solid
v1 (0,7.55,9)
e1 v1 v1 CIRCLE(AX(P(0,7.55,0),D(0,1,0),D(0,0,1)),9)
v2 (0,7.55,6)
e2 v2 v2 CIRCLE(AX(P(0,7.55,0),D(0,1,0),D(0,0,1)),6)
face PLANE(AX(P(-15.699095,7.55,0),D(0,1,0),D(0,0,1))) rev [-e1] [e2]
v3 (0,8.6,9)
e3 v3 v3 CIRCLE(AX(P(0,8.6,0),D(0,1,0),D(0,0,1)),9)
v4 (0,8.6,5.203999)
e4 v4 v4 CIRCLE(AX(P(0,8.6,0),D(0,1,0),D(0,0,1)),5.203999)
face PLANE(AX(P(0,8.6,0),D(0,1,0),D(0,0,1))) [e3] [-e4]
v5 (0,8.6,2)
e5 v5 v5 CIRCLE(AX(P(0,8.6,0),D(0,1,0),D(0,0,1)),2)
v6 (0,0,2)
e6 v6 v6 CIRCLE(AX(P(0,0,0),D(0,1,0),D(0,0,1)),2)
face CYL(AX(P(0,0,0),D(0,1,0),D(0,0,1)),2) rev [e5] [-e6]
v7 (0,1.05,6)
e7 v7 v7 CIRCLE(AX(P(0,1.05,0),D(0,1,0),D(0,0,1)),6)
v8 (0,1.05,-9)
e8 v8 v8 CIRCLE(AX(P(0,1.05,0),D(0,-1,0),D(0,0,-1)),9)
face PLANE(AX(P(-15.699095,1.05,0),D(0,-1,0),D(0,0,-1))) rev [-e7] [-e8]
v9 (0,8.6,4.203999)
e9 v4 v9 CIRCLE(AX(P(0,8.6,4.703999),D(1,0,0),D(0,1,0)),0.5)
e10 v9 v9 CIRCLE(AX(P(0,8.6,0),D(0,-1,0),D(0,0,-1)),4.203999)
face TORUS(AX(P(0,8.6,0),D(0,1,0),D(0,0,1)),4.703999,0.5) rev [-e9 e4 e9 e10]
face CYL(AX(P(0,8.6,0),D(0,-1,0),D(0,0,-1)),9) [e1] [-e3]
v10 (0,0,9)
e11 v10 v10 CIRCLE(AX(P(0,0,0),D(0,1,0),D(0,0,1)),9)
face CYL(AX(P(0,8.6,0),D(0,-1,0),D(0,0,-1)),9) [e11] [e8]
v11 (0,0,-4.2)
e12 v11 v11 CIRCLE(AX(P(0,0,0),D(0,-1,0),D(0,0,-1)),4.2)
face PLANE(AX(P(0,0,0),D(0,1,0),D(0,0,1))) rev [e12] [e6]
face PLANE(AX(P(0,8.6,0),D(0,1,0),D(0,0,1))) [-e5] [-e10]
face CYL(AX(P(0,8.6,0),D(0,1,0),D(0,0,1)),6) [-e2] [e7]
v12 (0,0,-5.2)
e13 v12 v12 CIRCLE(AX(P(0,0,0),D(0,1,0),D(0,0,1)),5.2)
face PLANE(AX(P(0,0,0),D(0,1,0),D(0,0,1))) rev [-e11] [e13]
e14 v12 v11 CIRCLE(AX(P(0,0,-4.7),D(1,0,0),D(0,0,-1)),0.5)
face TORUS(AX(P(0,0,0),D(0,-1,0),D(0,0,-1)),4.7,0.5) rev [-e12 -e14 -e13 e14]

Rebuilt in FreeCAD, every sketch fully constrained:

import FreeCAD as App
import Part
import Sketcher

V = App.Vector

doc = App.newDocument("Part")
body = doc.addObject("PartDesign::Body", "Body")

sketch1 = body.newObject("Sketcher::SketchObject", "Sketch")
sketch1.AttachmentSupport = (doc.getObject("XZ_Plane"), [""])
sketch1.MapMode = "FlatFace"
sketch1.addGeometry(Part.Circle(V(0, 0, 0), V(0, 0, 1), 9), False)
sketch1.addConstraint(Sketcher.Constraint("Coincident", 0, 3, -1, 1))
sketch1.addConstraint(Sketcher.Constraint("Diameter", 0, 18.0))
pad1 = body.newObject("PartDesign::Pad", "Pad")
pad1.Profile = sketch1
pad1.Length = 8.6
pad1.Reversed = True

sketch2 = body.newObject("Sketcher::SketchObject", "Sketch001")
sketch2.AttachmentSupport = (doc.getObject("XY_Plane"), [""])
sketch2.MapMode = "FlatFace"
sketch2.addGeometry(Part.LineSegment(V(-16, 8, 0), V(-16, 1, 0)), False)
sketch2.addGeometry(Part.LineSegment(V(-16, 1, 0), V(-6, 1, 0)), False)
sketch2.addGeometry(Part.LineSegment(V(-6, 1, 0), V(-6, 8, 0)), False)
sketch2.addGeometry(Part.LineSegment(V(-6, 8, 0), V(-16, 8, 0)), False)
sketch2.addConstraint(Sketcher.Constraint("Coincident", 0, 2, 1, 1))
sketch2.addConstraint(Sketcher.Constraint("Coincident", 1, 2, 2, 1))
sketch2.addConstraint(Sketcher.Constraint("Coincident", 2, 2, 3, 1))
sketch2.addConstraint(Sketcher.Constraint("Coincident", 3, 2, 0, 1))
sketch2.addConstraint(Sketcher.Constraint("Vertical", 0))
sketch2.addConstraint(Sketcher.Constraint("Horizontal", 1))
sketch2.addConstraint(Sketcher.Constraint("Vertical", 2))
sketch2.addConstraint(Sketcher.Constraint("Horizontal", 3))
sketch2.addConstraint(Sketcher.Constraint("DistanceY", 0, 2, 0, 1, 6.5))
sketch2.addConstraint(Sketcher.Constraint("DistanceX", 1, 2, -1, 1, 6.0))
sketch2.addConstraint(Sketcher.Constraint("DistanceY", -1, 1, 0, 2, 1.05))
sketch2.addConstraint(Sketcher.Constraint("DistanceX", 1, 1, 1, 2, 9.699095))
groove = body.newObject("PartDesign::Groove", "Groove")
groove.Profile = sketch2
groove.ReferenceAxis = (sketch2, ["V_Axis"])
groove.Angle = 360

sketch3 = body.newObject("Sketcher::SketchObject", "Sketch002")
sketch3.AttachmentSupport = (doc.getObject("XZ_Plane"), [""])
sketch3.MapMode = "FlatFace"
sketch3.AttachmentOffset = App.Placement(V(0, 0, -8.6), App.Rotation())
sketch3.addGeometry(Part.Circle(V(0, 0, 0), V(0, 0, 1), 2), False)
sketch3.addConstraint(Sketcher.Constraint("Coincident", 0, 3, -1, 1))
sketch3.addConstraint(Sketcher.Constraint("Diameter", 0, 4.0))
pocket1 = body.newObject("PartDesign::Pocket", "Pocket")
pocket1.Profile = sketch3
pocket1.Type = "ThroughAll"
pocket1.Reversed = True

sketch4 = body.newObject("Sketcher::SketchObject", "Sketch003")
sketch4.AttachmentSupport = (doc.getObject("XY_Plane"), [""])
sketch4.MapMode = "FlatFace"
sketch4.addGeometry(Part.Circle(V(4.7, 8.6, 0), V(0, 0, 1), 0.5), False)
sketch4.addConstraint(Sketcher.Constraint("Diameter", 0, 1.0))
sketch4.addConstraint(Sketcher.Constraint("DistanceY", -1, 1, 0, 3, 8.6))
sketch4.addConstraint(Sketcher.Constraint("DistanceX", -1, 1, 0, 3, 4.703999))

sketch5 = body.newObject("Sketcher::SketchObject", "Sketch004")
sketch5.AttachmentSupport = (doc.getObject("XZ_Plane"), [""])
sketch5.MapMode = "FlatFace"
sketch5.AttachmentOffset = App.Placement(V(0, 0, -8.6), App.Rotation())
sketch5.addGeometry(Part.Circle(V(0, 0, 0), V(0, 0, 1), 4.7), False)
sketch5.addConstraint(Sketcher.Constraint("Coincident", 0, 3, -1, 1))
sketch5.addConstraint(Sketcher.Constraint("Diameter", 0, 9.407999))
doc.recompute()

subtractivepipe = body.newObject("PartDesign::SubtractivePipe", "SubtractivePipe")
subtractivepipe.Profile = sketch4
subtractivepipe.Spine = (sketch5, ["Edge1"])

sketch6 = body.newObject("Sketcher::SketchObject", "Sketch005")
sketch6.AttachmentSupport = (doc.getObject("XY_Plane"), [""])
sketch6.MapMode = "FlatFace"
sketch6.addGeometry(Part.Circle(V(4.7, 0, 0), V(0, 0, 1), 0.5), False)
sketch6.addConstraint(Sketcher.Constraint("PointOnObject", 0, 3, -1))
sketch6.addConstraint(Sketcher.Constraint("Diameter", 0, 1.0))
sketch6.addConstraint(Sketcher.Constraint("DistanceX", -1, 1, 0, 3, 4.7))

sketch7 = body.newObject("Sketcher::SketchObject", "Sketch006")
sketch7.AttachmentSupport = (doc.getObject("XZ_Plane"), [""])
sketch7.MapMode = "FlatFace"
sketch7.addGeometry(Part.Circle(V(0, 0, 0), V(0, 0, 1), 4.7), False)
sketch7.addConstraint(Sketcher.Constraint("Coincident", 0, 3, -1, 1))
sketch7.addConstraint(Sketcher.Constraint("Diameter", 0, 9.4))
doc.recompute()

subtractivepipe2 = body.newObject("PartDesign::SubtractivePipe", "SubtractivePipe001")
subtractivepipe2.Profile = sketch6
subtractivepipe2.Spine = (sketch7, ["Edge1"])

doc.recompute()
